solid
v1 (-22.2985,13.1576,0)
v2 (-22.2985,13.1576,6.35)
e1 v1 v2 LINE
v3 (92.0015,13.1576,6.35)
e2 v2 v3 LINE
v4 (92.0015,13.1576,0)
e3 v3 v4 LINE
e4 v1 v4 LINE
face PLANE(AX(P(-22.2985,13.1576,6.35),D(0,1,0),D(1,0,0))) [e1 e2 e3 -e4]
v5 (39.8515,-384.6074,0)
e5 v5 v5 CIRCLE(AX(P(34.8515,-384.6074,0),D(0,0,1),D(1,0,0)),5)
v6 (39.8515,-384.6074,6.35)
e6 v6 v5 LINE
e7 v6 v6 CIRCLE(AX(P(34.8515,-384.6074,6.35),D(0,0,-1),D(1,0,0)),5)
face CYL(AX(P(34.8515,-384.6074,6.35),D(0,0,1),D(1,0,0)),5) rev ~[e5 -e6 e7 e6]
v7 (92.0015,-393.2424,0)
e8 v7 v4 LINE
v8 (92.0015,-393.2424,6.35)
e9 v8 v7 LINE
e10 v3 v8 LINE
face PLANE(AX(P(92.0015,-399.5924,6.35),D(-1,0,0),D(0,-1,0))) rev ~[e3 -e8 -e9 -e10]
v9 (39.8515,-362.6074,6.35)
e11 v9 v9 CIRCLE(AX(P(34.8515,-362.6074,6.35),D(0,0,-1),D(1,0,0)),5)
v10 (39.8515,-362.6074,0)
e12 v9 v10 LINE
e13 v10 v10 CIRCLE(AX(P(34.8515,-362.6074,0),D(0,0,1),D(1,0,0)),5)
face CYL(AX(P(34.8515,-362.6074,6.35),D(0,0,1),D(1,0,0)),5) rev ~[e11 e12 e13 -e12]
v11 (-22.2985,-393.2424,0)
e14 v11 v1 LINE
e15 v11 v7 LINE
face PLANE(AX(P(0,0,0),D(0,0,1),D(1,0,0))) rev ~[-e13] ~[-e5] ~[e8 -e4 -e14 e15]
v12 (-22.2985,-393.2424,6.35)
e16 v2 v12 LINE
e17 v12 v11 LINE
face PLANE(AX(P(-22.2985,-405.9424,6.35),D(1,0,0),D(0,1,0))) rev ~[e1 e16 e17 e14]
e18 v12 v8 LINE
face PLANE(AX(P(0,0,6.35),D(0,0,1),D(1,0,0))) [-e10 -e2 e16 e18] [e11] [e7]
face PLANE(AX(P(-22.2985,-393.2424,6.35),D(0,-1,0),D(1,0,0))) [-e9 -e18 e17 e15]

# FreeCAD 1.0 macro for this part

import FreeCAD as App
import Part
import Sketcher

V = App.Vector
Q = App.Units.Quantity


def add_polygon(sketch, points):
    """Adds a closed chain of lines whose ends are joined by coincident constraints."""
    first, n = sketch.GeometryCount, len(points)
    for a, b in zip(points, points[1:] + points[:1]):
        sketch.addGeometry(Part.LineSegment(App.Vector(*a, 0), App.Vector(*b, 0)), False)
    for i in range(n):
        sketch.addConstraint(Sketcher.Constraint("Coincident", first + i, 2, first + (i + 1) % n, 1))

doc = App.newDocument("Part")
params = doc.addObject("Spreadsheet::Sheet", "Params")
for row, (alias, value) in enumerate([
    ("sketch1_height", "12 in"),
    ("sketch1_width", "5.5 in"),
    ("pad1_length", "0.25 in"),
    ("sketch2_width", "12 in"),
    ("sketch2_height", "0.25 in"),
    ("pad2_length", "0.5 in"),
    ("sketch3_width", "12 in"),
    ("sketch3_height", "0.25 in"),
    ("pocket1_length", "1.5 in"),
    ("sketch4_height", "10 in"),
    ("sketch4_width", "4.5 in"),
    ("pad3_length", "0.25 in"),
    ("sketch5_width", "4.5 in"),
    ("sketch5_height", "0.25 in"),
    ("pocket2_length", "5 in"),
    ("sketch6_height", "0.25 in"),
    ("sketch6_width", "4.5 in"),
    ("pocket3_length", "1 in"),
    ("sketch7_height", "0.25 in"),
    ("sketch7_width", "4.5 in"),
    ("pad4_length", "0.25 in"),
    ("pocket4_length", "1 in"),
    ("sketch9_width", "4.5 in"),
    ("sketch9_height", "0.25 in"),
    ("pocket5_length", "0.5 in"),
    ("sketch10_width", "4.5 in"),
    ("sketch10_height", "0.25 in"),
    ("pocket6_length", "0.5 in"),
], start=1):
    params.set(f"A{row}", alias)
    params.set(f"B{row}", "=" + value)
    params.setAlias(f"B{row}", alias)

body = doc.addObject("PartDesign::Body", "Body")

# Sketch on XY plane
sketch1 = doc.addObject("Sketcher::SketchObject", "Sketch")
body.addObject(sketch1)
sketch1.AttachmentSupport = (doc.XY_Plane, [""])
sketch1.MapMode = "FlatFace"
add_polygon(sketch1, [(117.4015, 25.8576), (-22.2985, 25.8576), (-22.2985, -278.9424), (117.4015, -278.9424)])  # lines 0-3
sketch1.addConstraint(Sketcher.Constraint("Horizontal", 0))
sketch1.addConstraint(Sketcher.Constraint("Vertical", 1))
sketch1.addConstraint(Sketcher.Constraint("Horizontal", 2))
sketch1.addConstraint(Sketcher.Constraint("Vertical", 3))
sketch1.addConstraint(Sketcher.Constraint("DistanceY", 1, 2, 1, 1, Q("12 in")))
sketch1.addConstraint(Sketcher.Constraint("DistanceX", 0, 2, 0, 1, Q("5.5 in")))
sketch1.addConstraint(Sketcher.Constraint("DistanceX", 0, 2, -1, 1, Q("0.8779 in")))
sketch1.addConstraint(Sketcher.Constraint("DistanceY", -1, 1, 0, 2, Q("25.8576 mm")))
sketch1.setExpression("Constraints[8]", "Params.sketch1_height")
sketch1.setExpression("Constraints[9]", "Params.sketch1_width")
pad1 = doc.addObject("PartDesign::Pad", "Pad")
body.addObject(pad1)
pad1.Profile = sketch1
pad1.setExpression("Length", "Params.pad1_length")

# Sketch on YZ plane
sketch2 = doc.addObject("Sketcher::SketchObject", "Sketch001")
body.addObject(sketch2)
sketch2.AttachmentSupport = (doc.YZ_Plane, [""])
sketch2.MapMode = "FlatFace"
sketch2.AttachmentOffset = App.Placement(V(0, 0, 4.6221063 * 25.4), App.Rotation())
add_polygon(sketch2, [(25.8576, 0), (25.8576, 6.35), (-278.9424, 6.35), (-278.9424, 0)])  # lines 0-3
sketch2.addConstraint(Sketcher.Constraint("Vertical", 0))
sketch2.addConstraint(Sketcher.Constraint("Horizontal", 1))
sketch2.addConstraint(Sketcher.Constraint("Vertical", 2))
sketch2.addConstraint(Sketcher.Constraint("Horizontal", 3))
sketch2.addConstraint(Sketcher.Constraint("PointOnObject", 2, 2, -1))
sketch2.addConstraint(Sketcher.Constraint("DistanceX", 1, 2, 1, 1, Q("12 in")))
sketch2.addConstraint(Sketcher.Constraint("DistanceY", 0, 1, 0, 2, Q("0.25 in")))
sketch2.addConstraint(Sketcher.Constraint("DistanceX", -1, 1, 0, 2, Q("25.8576 mm")))
sketch2.setExpression("Constraints[9]", "Params.sketch2_width")
sketch2.setExpression("Constraints[10]", "Params.sketch2_height")
pad2 = doc.addObject("PartDesign::Pad", "Pad001")
body.addObject(pad2)
pad2.Profile = sketch2
pad2.setExpression("Length", "Params.pad2_length")

# Sketch on YZ plane
sketch3 = doc.addObject("Sketcher::SketchObject", "Sketch002")
body.addObject(sketch3)
sketch3.AttachmentSupport = (doc.YZ_Plane, [""])
sketch3.MapMode = "FlatFace"
sketch3.AttachmentOffset = App.Placement(V(0, 0, 5.1221063 * 25.4), App.Rotation())
add_polygon(sketch3, [(25.8576, 0), (25.8576, 6.35), (-278.9424, 6.35), (-278.9424, 0)])  # lines 0-3
sketch3.addConstraint(Sketcher.Constraint("Vertical", 0))
sketch3.addConstraint(Sketcher.Constraint("Horizontal", 1))
sketch3.addConstraint(Sketcher.Constraint("Vertical", 2))
sketch3.addConstraint(Sketcher.Constraint("Horizontal", 3))
sketch3.addConstraint(Sketcher.Constraint("PointOnObject", 2, 2, -1))
sketch3.addConstraint(Sketcher.Constraint("DistanceX", 1, 2, 1, 1, Q("12 in")))
sketch3.addConstraint(Sketcher.Constraint("DistanceY", 0, 1, 0, 2, Q("0.25 in")))
sketch3.addConstraint(Sketcher.Constraint("DistanceX", -1, 1, 0, 2, Q("25.8576 mm")))
sketch3.setExpression("Constraints[9]", "Params.sketch3_width")
sketch3.setExpression("Constraints[10]", "Params.sketch3_height")
pocket1 = doc.addObject("PartDesign::Pocket", "Pocket")
body.addObject(pocket1)
pocket1.Profile = sketch3
pocket1.setExpression("Length", "Params.pocket1_length")

# Sketch on XY plane
sketch4 = doc.addObject("Sketcher::SketchObject", "Sketch003")
body.addObject(sketch4)
sketch4.AttachmentSupport = (doc.XY_Plane, [""])
sketch4.MapMode = "FlatFace"
sketch4.AttachmentOffset = App.Placement(V(0, 0, 0.25 * 25.4), App.Rotation())
add_polygon(sketch4, [(92.0015, -278.9424), (-22.2985, -278.9424), (-22.2985, -532.9424), (92.0015, -532.9424)])  # lines 0-3
sketch4.addConstraint(Sketcher.Constraint("Horizontal", 0))
sketch4.addConstraint(Sketcher.Constraint("Vertical", 1))
sketch4.addConstraint(Sketcher.Constraint("Horizontal", 2))
sketch4.addConstraint(Sketcher.Constraint("Vertical", 3))
sketch4.addConstraint(Sketcher.Constraint("DistanceY", 1, 2, 1, 1, Q("10 in")))
sketch4.addConstraint(Sketcher.Constraint("DistanceX", 0, 2, 0, 1, Q("4.5 in")))
sketch4.addConstraint(Sketcher.Constraint("DistanceX", 0, 2, -1, 1, Q("0.8779 in")))
sketch4.addConstraint(Sketcher.Constraint("DistanceY", 0, 2, -1, 1, Q("278.9424 mm")))
sketch4.setExpression("Constraints[8]", "Params.sketch4_height")
sketch4.setExpression("Constraints[9]", "Params.sketch4_width")
pad3 = doc.addObject("PartDesign::Pad", "Pad002")
body.addObject(pad3)
pad3.Profile = sketch4
pad3.setExpression("Length", "Params.pad3_length")
pad3.Reversed = True

# Sketch on XZ plane
sketch5 = doc.addObject("Sketcher::SketchObject", "Sketch004")
body.addObject(sketch5)
sketch5.AttachmentSupport = (doc.XZ_Plane, [""])
sketch5.MapMode = "FlatFace"
sketch5.AttachmentOffset = App.Placement(V(0, 0, 532.9424), App.Rotation())
add_polygon(sketch5, [(-22.2985, 6.35), (-22.2985, 0), (92.0015, 0), (92.0015, 6.35)])  # lines 0-3
sketch5.addConstraint(Sketcher.Constraint("Vertical", 0))
sketch5.addConstraint(Sketcher.Constraint("Horizontal", 1))
sketch5.addConstraint(Sketcher.Constraint("Vertical", 2))
sketch5.addConstraint(Sketcher.Constraint("Horizontal", 3))
sketch5.addConstraint(Sketcher.Constraint("PointOnObject", 0, 2, -1))
sketch5.addConstraint(Sketcher.Constraint("DistanceX", 1, 1, 1, 2, Q("4.5 in")))
sketch5.addConstraint(Sketcher.Constraint("DistanceY", 0, 2, 0, 1, Q("0.25 in")))
sketch5.addConstraint(Sketcher.Constraint("DistanceX", 0, 2, -1, 1, Q("0.8779 in")))
sketch5.setExpression("Constraints[9]", "Params.sketch5_width")
sketch5.setExpression("Constraints[10]", "Params.sketch5_height")
pocket2 = doc.addObject("PartDesign::Pocket", "Pocket001")
body.addObject(pocket2)
pocket2.Profile = sketch5
pocket2.setExpression("Length", "Params.pocket2_length")

# Sketch on XY plane
sketch6 = doc.addObject("Sketcher::SketchObject", "Sketch005")
body.addObject(sketch6)
sketch6.AttachmentSupport = (doc.XY_Plane, [""])
sketch6.MapMode = "FlatFace"
sketch6.AttachmentOffset = App.Placement(V(0, 0, 0.25 * 25.4), App.Rotation())
add_polygon(sketch6, [(-22.2985, -399.5924), (-22.2985, -405.9424), (92.0015, -405.9424), (92.0015, -399.5924)])  # lines 0-3
sketch6.addConstraint(Sketcher.Constraint("Vertical", 0))
sketch6.addConstraint(Sketcher.Constraint("Horizontal", 1))
sketch6.addConstraint(Sketcher.Constraint("Vertical", 2))
sketch6.addConstraint(Sketcher.Constraint("Horizontal", 3))
sketch6.addConstraint(Sketcher.Constraint("DistanceY", 0, 2, 0, 1, Q("0.25 in")))
sketch6.addConstraint(Sketcher.Constraint("DistanceX", 1, 1, 1, 2, Q("4.5 in")))
sketch6.addConstraint(Sketcher.Constraint("DistanceX", 0, 2, -1, 1, Q("0.8779 in")))
sketch6.addConstraint(Sketcher.Constraint("DistanceY", 0, 2, -1, 1, Q("405.9424 mm")))
sketch6.setExpression("Constraints[8]", "Params.sketch6_height")
sketch6.setExpression("Constraints[9]", "Params.sketch6_width")
pocket3 = doc.addObject("PartDesign::Pocket", "Pocket002")
body.addObject(pocket3)
pocket3.Profile = sketch6
pocket3.setExpression("Length", "Params.pocket3_length")

# Sketch on XY plane
sketch7 = doc.addObject("Sketcher::SketchObject", "Sketch006")
body.addObject(sketch7)
sketch7.AttachmentSupport = (doc.XY_Plane, [""])
sketch7.MapMode = "FlatFace"
sketch7.AttachmentOffset = App.Placement(V(0, 0, 0.25 * 25.4), App.Rotation())
add_polygon(sketch7, [(92.0015, -399.5924), (-22.2985, -399.5924), (-22.2985, -405.9424), (92.0015, -405.9424)])  # lines 0-3
sketch7.addConstraint(Sketcher.Constraint("Horizontal", 0))
sketch7.addConstraint(Sketcher.Constraint("Vertical", 1))
sketch7.addConstraint(Sketcher.Constraint("Horizontal", 2))
sketch7.addConstraint(Sketcher.Constraint("Vertical", 3))
sketch7.addConstraint(Sketcher.Constraint("DistanceY", 1, 2, 1, 1, Q("0.25 in")))
sketch7.addConstraint(Sketcher.Constraint("DistanceX", 0, 2, 0, 1, Q("4.5 in")))
sketch7.addConstraint(Sketcher.Constraint("DistanceX", 0, 2, -1, 1, Q("0.8779 in")))
sketch7.addConstraint(Sketcher.Constraint("DistanceY", 0, 2, -1, 1, Q("399.5924 mm")))
sketch7.setExpression("Constraints[8]", "Params.sketch7_height")
sketch7.setExpression("Constraints[9]", "Params.sketch7_width")
pad4 = doc.addObject("PartDesign::Pad", "Pad003")
body.addObject(pad4)
pad4.Profile = sketch7
pad4.setExpression("Length", "Params.pad4_length")
pad4.Reversed = True

# Sketch on XY plane
sketch8 = doc.addObject("Sketcher::SketchObject", "Sketch007")
body.addObject(sketch8)
sketch8.AttachmentSupport = (doc.XY_Plane, [""])
sketch8.MapMode = "FlatFace"
sketch8.AttachmentOffset = App.Placement(V(0, 0, 0.25 * 25.4), App.Rotation())
sketch8.addGeometry(Part.Circle(V(34.8515, -384.6074, 0), V(0, 0, 1), 5), False)
sketch8.addGeometry(Part.Circle(V(34.8515, -362.6074, 0), V(0, 0, 1), 5), False)
sketch8.addConstraint(Sketcher.Constraint("Equal", 0, 1))
sketch8.addConstraint(Sketcher.Constraint("Vertical", 0, 3, 1, 3))
sketch8.addConstraint(Sketcher.Constraint("Diameter", 0, Q("0.3937 in")))
sketch8.addConstraint(Sketcher.Constraint("DistanceX", -1, 1, 0, 3, Q("1.3721 in")))
sketch8.addConstraint(Sketcher.Constraint("DistanceY", 0, 3, -1, 1, Q("384.6074 mm")))
sketch8.addConstraint(Sketcher.Constraint("DistanceY", 1, 3, -1, 1, Q("362.6074 mm")))
pocket4 = doc.addObject("PartDesign::Pocket", "Pocket003")
body.addObject(pocket4)
pocket4.Profile = sketch8
pocket4.setExpression("Length", "Params.pocket4_length")

# Sketch on XZ plane
sketch9 = doc.addObject("Sketcher::SketchObject", "Sketch008")
body.addObject(sketch9)
sketch9.AttachmentSupport = (doc.XZ_Plane, [""])
sketch9.MapMode = "FlatFace"
sketch9.AttachmentOffset = App.Placement(V(0, 0, -25.8576), App.Rotation())
add_polygon(sketch9, [(-22.2985, 6.35), (92.0015, 6.35), (92.0015, 0), (-22.2985, 0)])  # lines 0-3
sketch9.addConstraint(Sketcher.Constraint("Horizontal", 0))
sketch9.addConstraint(Sketcher.Constraint("Vertical", 1))
sketch9.addConstraint(Sketcher.Constraint("Horizontal", 2))
sketch9.addConstraint(Sketcher.Constraint("Vertical", 3))
sketch9.addConstraint(Sketcher.Constraint("PointOnObject", 1, 2, -1))
sketch9.addConstraint(Sketcher.Constraint("DistanceX", 0, 1, 0, 2, Q("4.5 in")))
sketch9.addConstraint(Sketcher.Constraint("DistanceY", 1, 2, 1, 1, Q("0.25 in")))
sketch9.addConstraint(Sketcher.Constraint("DistanceX", -1, 1, 0, 2, Q("3.6221 in")))
sketch9.setExpression("Constraints[9]", "Params.sketch9_width")
sketch9.setExpression("Constraints[10]", "Params.sketch9_height")
pocket5 = doc.addObject("PartDesign::Pocket", "Pocket004")
body.addObject(pocket5)
pocket5.Profile = sketch9
pocket5.setExpression("Length", "Params.pocket5_length")
pocket5.Reversed = True

# Sketch on XZ plane
sketch10 = doc.addObject("Sketcher::SketchObject", "Sketch009")
body.addObject(sketch10)
sketch10.AttachmentSupport = (doc.XZ_Plane, [""])
sketch10.MapMode = "FlatFace"
sketch10.AttachmentOffset = App.Placement(V(0, 0, 405.9424), App.Rotation())
add_polygon(sketch10, [(-22.2985, 6.35), (-22.2985, 0), (92.0015, 0), (92.0015, 6.35)])  # lines 0-3
sketch10.addConstraint(Sketcher.Constraint("Vertical", 0))
sketch10.addConstraint(Sketcher.Constraint("Horizontal", 1))
sketch10.addConstraint(Sketcher.Constraint("Vertical", 2))
sketch10.addConstraint(Sketcher.Constraint("Horizontal", 3))
sketch10.addConstraint(Sketcher.Constraint("PointOnObject", 0, 2, -1))
sketch10.addConstraint(Sketcher.Constraint("DistanceX", 1, 1, 1, 2, Q("4.5 in")))
sketch10.addConstraint(Sketcher.Constraint("DistanceY", 0, 2, 0, 1, Q("0.25 in")))
sketch10.addConstraint(Sketcher.Constraint("DistanceX", 0, 2, -1, 1, Q("0.8779 in")))
sketch10.setExpression("Constraints[9]", "Params.sketch10_width")
sketch10.setExpression("Constraints[10]", "Params.sketch10_height")
pocket6 = doc.addObject("PartDesign::Pocket", "Pocket005")
body.addObject(pocket6)
pocket6.Profile = sketch10
pocket6.setExpression("Length", "Params.pocket6_length")

doc.recompute()
